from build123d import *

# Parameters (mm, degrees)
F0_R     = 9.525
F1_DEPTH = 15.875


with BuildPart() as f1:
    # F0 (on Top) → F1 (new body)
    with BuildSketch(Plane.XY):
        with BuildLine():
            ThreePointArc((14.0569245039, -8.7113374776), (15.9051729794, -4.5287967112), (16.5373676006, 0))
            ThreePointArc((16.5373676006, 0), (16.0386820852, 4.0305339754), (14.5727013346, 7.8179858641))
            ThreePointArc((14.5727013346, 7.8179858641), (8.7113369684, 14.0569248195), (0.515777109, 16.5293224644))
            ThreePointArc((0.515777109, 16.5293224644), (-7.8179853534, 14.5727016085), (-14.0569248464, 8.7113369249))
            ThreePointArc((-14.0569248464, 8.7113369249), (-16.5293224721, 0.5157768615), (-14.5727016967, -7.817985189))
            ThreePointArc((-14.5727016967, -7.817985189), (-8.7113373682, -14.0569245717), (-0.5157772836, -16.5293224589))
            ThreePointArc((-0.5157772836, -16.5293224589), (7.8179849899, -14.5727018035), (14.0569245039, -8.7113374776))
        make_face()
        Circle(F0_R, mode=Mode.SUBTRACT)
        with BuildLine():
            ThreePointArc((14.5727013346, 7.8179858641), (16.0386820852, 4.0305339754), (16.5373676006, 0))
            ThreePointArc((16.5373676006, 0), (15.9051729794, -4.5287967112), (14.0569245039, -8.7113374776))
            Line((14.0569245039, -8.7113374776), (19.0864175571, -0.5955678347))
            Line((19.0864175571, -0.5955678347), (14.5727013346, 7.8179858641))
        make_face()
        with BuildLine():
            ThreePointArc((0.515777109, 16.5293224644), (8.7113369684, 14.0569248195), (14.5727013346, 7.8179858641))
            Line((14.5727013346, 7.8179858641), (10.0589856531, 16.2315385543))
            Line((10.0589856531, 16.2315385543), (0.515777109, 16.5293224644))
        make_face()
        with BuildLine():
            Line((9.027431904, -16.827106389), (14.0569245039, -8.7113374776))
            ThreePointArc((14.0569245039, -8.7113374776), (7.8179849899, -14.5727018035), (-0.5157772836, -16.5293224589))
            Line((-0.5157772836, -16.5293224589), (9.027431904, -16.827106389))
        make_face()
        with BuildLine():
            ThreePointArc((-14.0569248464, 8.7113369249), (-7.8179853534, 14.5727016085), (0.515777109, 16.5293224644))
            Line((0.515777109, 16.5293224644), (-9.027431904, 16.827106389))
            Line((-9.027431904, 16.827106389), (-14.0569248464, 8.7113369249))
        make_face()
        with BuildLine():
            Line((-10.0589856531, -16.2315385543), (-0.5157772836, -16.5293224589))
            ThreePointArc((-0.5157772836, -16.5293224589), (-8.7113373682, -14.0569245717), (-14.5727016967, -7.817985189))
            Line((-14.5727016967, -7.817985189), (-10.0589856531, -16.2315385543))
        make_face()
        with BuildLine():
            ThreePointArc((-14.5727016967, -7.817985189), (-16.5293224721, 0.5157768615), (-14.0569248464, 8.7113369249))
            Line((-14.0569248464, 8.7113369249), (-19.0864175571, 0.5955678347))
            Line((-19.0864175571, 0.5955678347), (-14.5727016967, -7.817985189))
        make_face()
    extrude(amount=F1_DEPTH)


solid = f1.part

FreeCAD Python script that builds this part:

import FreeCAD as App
import Part
import Sketcher

V = App.Vector
Q = App.Units.Quantity


def add_polygon(sketch, points):
    """Adds a closed chain of lines whose ends are joined by coincident constraints."""
    first, n = sketch.GeometryCount, len(points)
    for a, b in zip(points, points[1:] + points[:1]):
        sketch.addGeometry(Part.LineSegment(App.Vector(*a, 0), App.Vector(*b, 0)), False)
    for i in range(n):
        sketch.addConstraint(Sketcher.Constraint("Coincident", first + i, 2, first + (i + 1) % n, 1))

doc = App.newDocument("Part")
params = doc.addObject("Spreadsheet::Sheet", "Params")
for row, (alias, value) in enumerate([
    ("sketch1_diameter", "0.75 in"),
    ("pad1_length", "0.625 in"),
], start=1):
    params.set(f"A{row}", alias)
    params.set(f"B{row}", "=" + value)
    params.setAlias(f"B{row}", alias)

body = doc.addObject("PartDesign::Body", "Body")

# Sketch on XY plane
sketch1 = body.newObject("Sketcher::SketchObject", "Sketch")
sketch1.AttachmentSupport = (doc.getObject("XY_Plane"), [""])
sketch1.MapMode = "FlatFace"
add_polygon(sketch1, [(-0.515777, -16.529322), (9.027432, -16.827106), (14.056925, -8.711337), (19.086418, -0.595568), (14.572701, 7.817986), (10.058986, 16.231539), (0.515777, 16.529322), (-9.027432, 16.827106), (-14.056925, 8.711337), (-19.086418, 0.595568), (-14.572702, -7.817985), (-10.058986, -16.231539)])  # lines 0-11
sketch1.addGeometry(Part.Circle(V(0, 0, 0), V(0, 0, 1), 9.525), False)  # 12
sketch1.addConstraint([
    Sketcher.Constraint("Coincident", 12, 3, -1, 1),
    Sketcher.Constraint("Symmetric", 0, 2, 6, 2, -1, 1),
    Sketcher.Constraint("Symmetric", 1, 2, 7, 2, -1, 1),
    Sketcher.Constraint("Symmetric", 2, 2, 8, 2, -1, 1),
    Sketcher.Constraint("Symmetric", 3, 2, 9, 2, -1, 1),
    Sketcher.Constraint("Symmetric", 4, 2, 10, 2, -1, 1),
    Sketcher.Constraint("Symmetric", 5, 2, 11, 2, -1, 1),
    Sketcher.Constraint("Parallel", 1, 2),
    Sketcher.Constraint("Parallel", 3, 4),
    Sketcher.Constraint("Parallel", 0, 5),
    Sketcher.Constraint("Equal", 0, 1),
    Sketcher.Constraint("Equal", 1, 2),
    Sketcher.Constraint("Equal", 2, 3),
    Sketcher.Constraint("Equal", 3, 4),
    Sketcher.Constraint("Equal", 4, 5),
    Sketcher.Constraint("Diameter", 12, Q("0.75 in")),
    Sketcher.Constraint("DistanceX", -1, 1, 3, 2, Q("14.572701 mm")),
    Sketcher.Constraint("DistanceY", 7, 2, 4, 2, Q("7.520202 mm")),
    Sketcher.Constraint("DistanceX", -1, 1, 0, 2, Q("9.027432 mm")),
    Sketcher.Constraint("DistanceY", -1, 1, 4, 2, Q("16.231539 mm")),
])
sketch1.setExpression("Constraints[27]", "Params.sketch1_diameter")
pad1 = body.newObject("PartDesign::Pad", "Pad")
pad1.Profile = sketch1
pad1.setExpression("Length", "Params.pad1_length")

doc.recompute()
